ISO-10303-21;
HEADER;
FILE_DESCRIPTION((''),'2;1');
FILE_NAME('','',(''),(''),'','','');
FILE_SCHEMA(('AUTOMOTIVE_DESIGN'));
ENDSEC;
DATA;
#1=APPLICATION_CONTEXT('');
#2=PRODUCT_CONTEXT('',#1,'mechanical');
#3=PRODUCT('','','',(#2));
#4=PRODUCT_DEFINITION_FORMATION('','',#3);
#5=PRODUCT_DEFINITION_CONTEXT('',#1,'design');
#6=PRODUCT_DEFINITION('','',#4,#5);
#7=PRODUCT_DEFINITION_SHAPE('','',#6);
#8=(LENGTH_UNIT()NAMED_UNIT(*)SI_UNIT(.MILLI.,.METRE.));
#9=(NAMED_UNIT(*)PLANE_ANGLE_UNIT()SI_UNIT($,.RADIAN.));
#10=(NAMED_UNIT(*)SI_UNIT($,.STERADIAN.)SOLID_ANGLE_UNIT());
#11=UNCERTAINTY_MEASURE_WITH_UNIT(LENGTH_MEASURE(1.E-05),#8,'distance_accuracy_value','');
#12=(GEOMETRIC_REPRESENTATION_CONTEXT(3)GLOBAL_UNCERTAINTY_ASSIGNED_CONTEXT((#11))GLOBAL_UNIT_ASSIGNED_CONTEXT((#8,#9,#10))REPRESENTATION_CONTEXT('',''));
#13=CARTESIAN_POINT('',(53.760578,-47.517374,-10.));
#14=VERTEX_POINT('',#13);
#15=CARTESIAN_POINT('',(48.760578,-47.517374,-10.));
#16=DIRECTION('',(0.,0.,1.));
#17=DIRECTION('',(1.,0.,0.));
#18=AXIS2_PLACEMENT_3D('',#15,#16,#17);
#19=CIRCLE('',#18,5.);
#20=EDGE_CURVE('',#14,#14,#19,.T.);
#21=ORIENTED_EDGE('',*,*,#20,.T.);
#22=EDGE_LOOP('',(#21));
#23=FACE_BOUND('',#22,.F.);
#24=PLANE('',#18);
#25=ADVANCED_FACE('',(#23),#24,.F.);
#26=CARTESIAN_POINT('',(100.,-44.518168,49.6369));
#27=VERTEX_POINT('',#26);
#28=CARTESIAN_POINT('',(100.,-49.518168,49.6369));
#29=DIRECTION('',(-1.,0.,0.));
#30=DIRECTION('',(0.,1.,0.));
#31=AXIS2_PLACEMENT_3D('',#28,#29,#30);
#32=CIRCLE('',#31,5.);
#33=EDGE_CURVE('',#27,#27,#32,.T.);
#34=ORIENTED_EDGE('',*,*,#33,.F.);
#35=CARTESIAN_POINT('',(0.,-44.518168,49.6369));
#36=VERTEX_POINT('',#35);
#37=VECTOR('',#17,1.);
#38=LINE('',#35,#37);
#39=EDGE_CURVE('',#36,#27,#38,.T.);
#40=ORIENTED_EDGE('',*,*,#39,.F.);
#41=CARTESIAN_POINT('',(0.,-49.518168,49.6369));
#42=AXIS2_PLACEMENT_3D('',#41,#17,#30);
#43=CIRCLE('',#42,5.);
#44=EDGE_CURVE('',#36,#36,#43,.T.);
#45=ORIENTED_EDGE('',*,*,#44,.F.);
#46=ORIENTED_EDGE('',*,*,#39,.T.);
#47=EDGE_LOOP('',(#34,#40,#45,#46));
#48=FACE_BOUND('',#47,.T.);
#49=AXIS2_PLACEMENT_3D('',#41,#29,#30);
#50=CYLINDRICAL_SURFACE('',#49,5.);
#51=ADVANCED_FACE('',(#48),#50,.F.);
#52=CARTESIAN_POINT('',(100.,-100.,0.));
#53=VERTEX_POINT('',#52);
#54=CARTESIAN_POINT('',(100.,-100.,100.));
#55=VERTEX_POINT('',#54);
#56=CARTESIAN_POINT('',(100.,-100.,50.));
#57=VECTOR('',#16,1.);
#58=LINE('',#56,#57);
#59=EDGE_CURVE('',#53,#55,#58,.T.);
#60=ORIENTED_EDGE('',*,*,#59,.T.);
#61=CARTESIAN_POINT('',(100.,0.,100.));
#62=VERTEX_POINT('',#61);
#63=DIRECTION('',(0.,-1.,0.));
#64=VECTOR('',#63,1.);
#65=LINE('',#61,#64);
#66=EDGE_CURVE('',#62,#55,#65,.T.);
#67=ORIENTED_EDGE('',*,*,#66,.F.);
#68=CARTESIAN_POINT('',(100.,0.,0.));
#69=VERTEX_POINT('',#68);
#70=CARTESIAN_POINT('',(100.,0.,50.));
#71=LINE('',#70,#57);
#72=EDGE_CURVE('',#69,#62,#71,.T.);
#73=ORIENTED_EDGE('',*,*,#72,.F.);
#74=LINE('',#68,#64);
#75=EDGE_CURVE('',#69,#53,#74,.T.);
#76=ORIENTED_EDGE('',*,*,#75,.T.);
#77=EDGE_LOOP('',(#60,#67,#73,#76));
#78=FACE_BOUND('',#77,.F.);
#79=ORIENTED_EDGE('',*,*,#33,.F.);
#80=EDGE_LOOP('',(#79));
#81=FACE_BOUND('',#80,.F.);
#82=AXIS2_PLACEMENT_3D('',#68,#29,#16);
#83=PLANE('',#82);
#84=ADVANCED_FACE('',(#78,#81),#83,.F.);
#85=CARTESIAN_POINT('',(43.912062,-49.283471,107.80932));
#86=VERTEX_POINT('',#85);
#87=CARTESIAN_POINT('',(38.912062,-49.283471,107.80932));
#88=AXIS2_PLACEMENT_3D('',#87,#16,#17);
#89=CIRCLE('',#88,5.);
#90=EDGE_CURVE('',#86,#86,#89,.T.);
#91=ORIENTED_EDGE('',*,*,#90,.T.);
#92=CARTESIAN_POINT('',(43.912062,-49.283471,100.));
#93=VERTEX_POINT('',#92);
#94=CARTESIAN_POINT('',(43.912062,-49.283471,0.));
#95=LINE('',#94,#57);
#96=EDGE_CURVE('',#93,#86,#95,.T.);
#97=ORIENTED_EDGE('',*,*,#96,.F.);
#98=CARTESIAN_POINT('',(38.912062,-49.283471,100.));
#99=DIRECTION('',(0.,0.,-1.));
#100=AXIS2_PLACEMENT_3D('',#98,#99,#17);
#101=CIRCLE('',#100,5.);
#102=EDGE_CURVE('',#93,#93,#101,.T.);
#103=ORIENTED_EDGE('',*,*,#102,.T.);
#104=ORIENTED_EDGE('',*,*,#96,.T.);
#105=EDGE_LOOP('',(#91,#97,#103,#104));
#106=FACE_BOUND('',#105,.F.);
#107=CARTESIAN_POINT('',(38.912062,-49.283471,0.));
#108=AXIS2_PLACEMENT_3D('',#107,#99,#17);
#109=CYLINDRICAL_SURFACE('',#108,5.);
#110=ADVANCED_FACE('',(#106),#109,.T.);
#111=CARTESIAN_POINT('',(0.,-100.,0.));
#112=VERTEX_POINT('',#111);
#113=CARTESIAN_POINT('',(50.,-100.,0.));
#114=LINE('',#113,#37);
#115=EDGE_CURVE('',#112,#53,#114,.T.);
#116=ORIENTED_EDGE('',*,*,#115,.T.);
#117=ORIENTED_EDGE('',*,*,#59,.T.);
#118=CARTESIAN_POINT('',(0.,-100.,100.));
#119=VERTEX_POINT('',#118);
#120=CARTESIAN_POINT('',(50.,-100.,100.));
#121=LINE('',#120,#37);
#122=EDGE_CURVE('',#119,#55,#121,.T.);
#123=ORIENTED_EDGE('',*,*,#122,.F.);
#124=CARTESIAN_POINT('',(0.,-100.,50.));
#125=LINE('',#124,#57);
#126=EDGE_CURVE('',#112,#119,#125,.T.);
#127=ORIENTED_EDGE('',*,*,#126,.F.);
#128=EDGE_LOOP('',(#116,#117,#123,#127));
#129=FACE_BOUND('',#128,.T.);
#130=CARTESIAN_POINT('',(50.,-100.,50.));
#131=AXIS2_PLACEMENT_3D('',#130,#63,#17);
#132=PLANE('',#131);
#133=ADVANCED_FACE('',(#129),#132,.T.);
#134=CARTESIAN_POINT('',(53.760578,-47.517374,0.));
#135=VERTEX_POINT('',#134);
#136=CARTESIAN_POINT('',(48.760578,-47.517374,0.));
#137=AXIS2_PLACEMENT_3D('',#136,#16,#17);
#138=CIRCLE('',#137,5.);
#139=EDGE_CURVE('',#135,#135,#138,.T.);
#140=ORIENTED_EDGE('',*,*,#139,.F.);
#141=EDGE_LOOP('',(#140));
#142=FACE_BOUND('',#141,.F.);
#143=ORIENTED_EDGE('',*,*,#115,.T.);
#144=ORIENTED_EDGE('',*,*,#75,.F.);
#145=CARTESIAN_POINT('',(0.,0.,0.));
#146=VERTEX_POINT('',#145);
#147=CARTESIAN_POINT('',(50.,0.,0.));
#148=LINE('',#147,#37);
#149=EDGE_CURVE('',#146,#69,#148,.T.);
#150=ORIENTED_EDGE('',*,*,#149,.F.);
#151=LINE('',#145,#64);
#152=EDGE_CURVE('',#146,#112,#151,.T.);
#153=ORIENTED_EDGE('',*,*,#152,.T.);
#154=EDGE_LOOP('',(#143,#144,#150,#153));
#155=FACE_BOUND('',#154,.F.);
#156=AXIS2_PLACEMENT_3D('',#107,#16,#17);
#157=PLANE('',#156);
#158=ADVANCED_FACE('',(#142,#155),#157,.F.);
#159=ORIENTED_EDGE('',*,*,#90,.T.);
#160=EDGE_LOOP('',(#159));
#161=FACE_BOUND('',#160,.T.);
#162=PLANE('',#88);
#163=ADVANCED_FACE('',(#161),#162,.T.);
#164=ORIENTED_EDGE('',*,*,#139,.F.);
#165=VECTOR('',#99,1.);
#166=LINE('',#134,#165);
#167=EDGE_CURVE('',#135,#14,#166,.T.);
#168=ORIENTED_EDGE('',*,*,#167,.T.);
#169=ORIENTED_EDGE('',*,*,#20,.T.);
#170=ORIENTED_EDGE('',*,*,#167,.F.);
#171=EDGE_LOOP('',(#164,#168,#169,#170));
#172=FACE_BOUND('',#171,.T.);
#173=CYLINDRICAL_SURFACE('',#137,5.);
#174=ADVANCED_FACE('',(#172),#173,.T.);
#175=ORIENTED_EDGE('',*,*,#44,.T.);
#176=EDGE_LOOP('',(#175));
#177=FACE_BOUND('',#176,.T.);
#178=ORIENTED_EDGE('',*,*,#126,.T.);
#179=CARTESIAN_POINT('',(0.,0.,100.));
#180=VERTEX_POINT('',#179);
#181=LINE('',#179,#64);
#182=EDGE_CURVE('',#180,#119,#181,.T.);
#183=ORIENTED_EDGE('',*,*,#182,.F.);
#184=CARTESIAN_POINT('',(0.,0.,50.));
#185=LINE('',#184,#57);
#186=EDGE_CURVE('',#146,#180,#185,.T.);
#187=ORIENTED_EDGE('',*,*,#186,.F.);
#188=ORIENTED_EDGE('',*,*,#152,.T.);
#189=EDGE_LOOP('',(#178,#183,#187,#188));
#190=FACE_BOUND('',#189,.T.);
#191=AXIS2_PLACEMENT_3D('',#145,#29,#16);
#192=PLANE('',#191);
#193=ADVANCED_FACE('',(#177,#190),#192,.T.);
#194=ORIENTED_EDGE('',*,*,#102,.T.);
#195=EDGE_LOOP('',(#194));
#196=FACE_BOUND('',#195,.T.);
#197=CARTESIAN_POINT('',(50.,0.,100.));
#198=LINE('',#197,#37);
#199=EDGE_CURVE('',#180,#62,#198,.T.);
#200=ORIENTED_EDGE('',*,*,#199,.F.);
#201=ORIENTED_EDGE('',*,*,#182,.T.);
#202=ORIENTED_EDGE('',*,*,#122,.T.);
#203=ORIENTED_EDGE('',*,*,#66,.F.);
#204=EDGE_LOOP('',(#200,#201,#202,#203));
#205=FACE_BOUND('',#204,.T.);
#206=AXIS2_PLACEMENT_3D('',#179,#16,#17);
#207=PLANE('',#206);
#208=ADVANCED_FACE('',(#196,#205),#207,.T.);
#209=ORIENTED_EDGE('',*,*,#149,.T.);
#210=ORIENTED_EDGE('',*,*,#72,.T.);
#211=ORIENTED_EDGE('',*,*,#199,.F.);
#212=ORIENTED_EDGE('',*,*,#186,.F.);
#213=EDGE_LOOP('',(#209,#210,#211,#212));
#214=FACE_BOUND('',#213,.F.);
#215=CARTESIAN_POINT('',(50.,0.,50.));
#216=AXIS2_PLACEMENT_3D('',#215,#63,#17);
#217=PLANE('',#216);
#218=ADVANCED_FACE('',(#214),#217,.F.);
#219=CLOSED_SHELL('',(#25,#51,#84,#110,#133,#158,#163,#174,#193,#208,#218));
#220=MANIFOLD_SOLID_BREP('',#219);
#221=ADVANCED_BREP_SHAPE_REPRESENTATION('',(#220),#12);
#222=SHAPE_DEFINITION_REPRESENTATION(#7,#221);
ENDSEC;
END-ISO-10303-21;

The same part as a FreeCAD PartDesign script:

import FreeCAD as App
import Part
import Sketcher


def add_polygon(sketch, points):
    """Adds a closed chain of lines whose ends are joined by coincident constraints."""
    first, n = sketch.GeometryCount, len(points)
    for a, b in zip(points, points[1:] + points[:1]):
        sketch.addGeometry(Part.LineSegment(App.Vector(*a, 0), App.Vector(*b, 0)), False)
    for i in range(n):
        sketch.addConstraint(Sketcher.Constraint("Coincident", first + i, 2, first + (i + 1) % n, 1))

doc = App.newDocument("Part")
params = doc.addObject("Spreadsheet::Sheet", "Params")
for row, (alias, value) in enumerate([
    ("sketch1_width", "100 mm"),
    ("pad1_length", "100 mm"),
    ("sketch2_diameter", "10 mm"),
    ("pad2_length", "10 mm"),
    ("sketch3_diameter", "10 mm"),
    ("pad3_length", "107.80932 mm"),
    ("sketch4_diameter", "10 mm"),
    ("pocket1_length", "333.937347 mm"),
], start=1):
    params.set(f"A{row}", alias)
    params.set(f"B{row}", "=" + value)
    params.setAlias(f"B{row}", alias)

body = doc.addObject("PartDesign::Body", "Body")

sketch1 = doc.addObject("Sketcher::SketchObject", "Sketch")
body.addObject(sketch1)
sketch1.AttachmentSupport = (doc.XZ_Plane, [""])
sketch1.MapMode = "FlatFace"
add_polygon(sketch1, [(0, 100), (0, 0), (100, 0), (100, 100)])
sketch1.addConstraint(Sketcher.Constraint("Vertical", 0))
sketch1.addConstraint(Sketcher.Constraint("Horizontal", 1))
sketch1.addConstraint(Sketcher.Constraint("Vertical", 2))
sketch1.addConstraint(Sketcher.Constraint("Horizontal", 3))
sketch1.addConstraint(Sketcher.Constraint("Coincident", 0, 2, -1, 1))
sketch1.addConstraint(Sketcher.Constraint("Equal", 3, 0))
sketch1.addConstraint(Sketcher.Constraint("DistanceX", 1, 1, 1, 2, 100.0))
sketch1.setExpression("Constraints[10]", "Params.sketch1_width")
pad1 = doc.addObject("PartDesign::Pad", "Pad")
body.addObject(pad1)
pad1.Profile = sketch1
pad1.setExpression("Length", "Params.pad1_length")

sketch2 = doc.addObject("Sketcher::SketchObject", "Sketch001")
body.addObject(sketch2)
sketch2.AttachmentSupport = (doc.XY_Plane, [""])
sketch2.MapMode = "FlatFace"
sketch2.addGeometry(Part.Circle(App.Vector(48.760578, -47.517374, 0), App.Vector(0, 0, 1), 5), False)
sketch2.addConstraint(Sketcher.Constraint("Diameter", 0, 10.0))
sketch2.addConstraint(Sketcher.Constraint("DistanceX", -1, 1, 0, 3, 48.760578))
sketch2.addConstraint(Sketcher.Constraint("DistanceY", 0, 3, -1, 1, 47.517374))
sketch2.setExpression("Constraints[0]", "Params.sketch2_diameter")
pad2 = doc.addObject("PartDesign::Pad", "Pad001")
body.addObject(pad2)
pad2.Profile = sketch2
pad2.setExpression("Length", "Params.pad2_length")
pad2.Reversed = True

sketch3 = doc.addObject("Sketcher::SketchObject", "Sketch002")
body.addObject(sketch3)
sketch3.AttachmentSupport = (doc.XY_Plane, [""])
sketch3.MapMode = "FlatFace"
sketch3.addGeometry(Part.Circle(App.Vector(38.912062, -49.283471, 0), App.Vector(0, 0, 1), 5), False)
sketch3.addConstraint(Sketcher.Constraint("Diameter", 0, 10.0))
sketch3.addConstraint(Sketcher.Constraint("DistanceY", 0, 3, -1, 1, 49.283471))
sketch3.addConstraint(Sketcher.Constraint("DistanceX", -1, 1, 0, 3, 38.912062))
sketch3.setExpression("Constraints[0]", "Params.sketch3_diameter")
pad3 = doc.addObject("PartDesign::Pad", "Pad002")
body.addObject(pad3)
pad3.Profile = sketch3
pad3.setExpression("Length", "Params.pad3_length")

sketch4 = doc.addObject("Sketcher::SketchObject", "Sketch003")
body.addObject(sketch4)
sketch4.AttachmentSupport = (doc.YZ_Plane, [""])
sketch4.MapMode = "FlatFace"
sketch4.addGeometry(Part.Circle(App.Vector(-49.518168, 49.6369, 0), App.Vector(0, 0, 1), 5), False)
sketch4.addConstraint(Sketcher.Constraint("Diameter", 0, 10.0))
sketch4.addConstraint(Sketcher.Constraint("DistanceY", -1, 1, 0, 3, 49.6369))
sketch4.addConstraint(Sketcher.Constraint("DistanceX", 0, 3, -1, 1, 49.518168))
sketch4.setExpression("Constraints[0]", "Params.sketch4_diameter")
pocket1 = doc.addObject("PartDesign::Pocket", "Pocket")
body.addObject(pocket1)
pocket1.Profile = sketch4
pocket1.setExpression("Length", "Params.pocket1_length")
pocket1.Reversed = True

doc.recompute()
